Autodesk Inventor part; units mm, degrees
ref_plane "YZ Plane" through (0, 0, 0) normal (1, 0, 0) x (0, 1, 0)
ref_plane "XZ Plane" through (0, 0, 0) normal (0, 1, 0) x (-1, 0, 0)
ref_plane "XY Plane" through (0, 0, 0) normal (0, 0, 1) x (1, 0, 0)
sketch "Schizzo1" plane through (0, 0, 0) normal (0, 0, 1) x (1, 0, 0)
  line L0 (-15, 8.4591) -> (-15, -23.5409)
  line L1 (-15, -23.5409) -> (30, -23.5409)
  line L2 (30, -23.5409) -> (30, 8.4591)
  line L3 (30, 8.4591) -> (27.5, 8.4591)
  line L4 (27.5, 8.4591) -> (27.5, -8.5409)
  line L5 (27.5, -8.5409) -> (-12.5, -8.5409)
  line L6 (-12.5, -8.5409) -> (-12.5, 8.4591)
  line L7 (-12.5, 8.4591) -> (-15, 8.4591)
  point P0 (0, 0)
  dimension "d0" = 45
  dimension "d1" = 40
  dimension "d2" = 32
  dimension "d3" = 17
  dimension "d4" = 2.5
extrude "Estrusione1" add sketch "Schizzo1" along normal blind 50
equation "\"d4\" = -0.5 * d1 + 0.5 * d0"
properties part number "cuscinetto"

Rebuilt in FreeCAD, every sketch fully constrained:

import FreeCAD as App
import Part
import Sketcher
Q = App.Units.Quantity


def add_polygon(sketch, points):
    """Adds a closed chain of lines whose ends are joined by coincident constraints."""
    first, n = sketch.GeometryCount, len(points)
    for a, b in zip(points, points[1:] + points[:1]):
        sketch.addGeometry(Part.LineSegment(App.Vector(*a, 0), App.Vector(*b, 0)), False)
    for i in range(n):
        sketch.addConstraint(Sketcher.Constraint("Coincident", first + i, 2, first + (i + 1) % n, 1))

doc = App.newDocument("Part")
params = doc.addObject("Spreadsheet::Sheet", "Params")
for row, (alias, value) in enumerate([
    ("sketch1_width", "45 mm"),
    ("sketch1_width2", "40 mm"),
    ("sketch1_height", "32 mm"),
    ("sketch1_height2", "17 mm"),
    ("pad1_length", "50 mm"),
], start=1):
    params.set(f"A{row}", alias)
    params.set(f"B{row}", "=" + value)
    params.setAlias(f"B{row}", alias)

body = doc.addObject("PartDesign::Body", "Body")

# Sketch on XY plane
sketch1 = body.newObject("Sketcher::SketchObject", "Sketch")
sketch1.AttachmentSupport = (doc.getObject("XY_Plane"), [""])
sketch1.MapMode = "FlatFace"
add_polygon(sketch1, [(-12.5, 8.5), (-15, 8.5), (-15, -23.5), (30, -23.5), (30, 8.5), (27.5, 8.5), (27.5, -8.5), (-12.5, -8.5)])  # lines 0-7
sketch1.addConstraint([
    Sketcher.Constraint("Horizontal", 0),
    Sketcher.Constraint("Vertical", 1),
    Sketcher.Constraint("Horizontal", 2),
    Sketcher.Constraint("Vertical", 3),
    Sketcher.Constraint("Horizontal", 4),
    Sketcher.Constraint("Vertical", 5),
    Sketcher.Constraint("Horizontal", 6),
    Sketcher.Constraint("Vertical", 7),
    Sketcher.Constraint("Horizontal", 0, 2, 3, 2),
    Sketcher.Constraint("Equal", 0, 4),
    Sketcher.Constraint("DistanceX", 2, 1, 2, 2, Q("45 mm")),
    Sketcher.Constraint("DistanceX", 6, 2, 6, 1, Q("40 mm")),
    Sketcher.Constraint("DistanceY", 1, 2, 1, 1, Q("32 mm")),
    Sketcher.Constraint("DistanceY", 5, 2, 5, 1, Q("17 mm")),
    Sketcher.Constraint("DistanceX", 0, 2, -1, 1, Q("15 mm")),
    Sketcher.Constraint("DistanceY", -1, 1, 0, 2, Q("8.459 mm")),
])
sketch1.setExpression("Constraints[18]", "Params.sketch1_width")
sketch1.setExpression("Constraints[19]", "Params.sketch1_width2")
sketch1.setExpression("Constraints[20]", "Params.sketch1_height")
sketch1.setExpression("Constraints[21]", "Params.sketch1_height2")
pad1 = body.newObject("PartDesign::Pad", "Pad")
pad1.Profile = sketch1
pad1.setExpression("Length", "Params.pad1_length")

doc.recompute()
